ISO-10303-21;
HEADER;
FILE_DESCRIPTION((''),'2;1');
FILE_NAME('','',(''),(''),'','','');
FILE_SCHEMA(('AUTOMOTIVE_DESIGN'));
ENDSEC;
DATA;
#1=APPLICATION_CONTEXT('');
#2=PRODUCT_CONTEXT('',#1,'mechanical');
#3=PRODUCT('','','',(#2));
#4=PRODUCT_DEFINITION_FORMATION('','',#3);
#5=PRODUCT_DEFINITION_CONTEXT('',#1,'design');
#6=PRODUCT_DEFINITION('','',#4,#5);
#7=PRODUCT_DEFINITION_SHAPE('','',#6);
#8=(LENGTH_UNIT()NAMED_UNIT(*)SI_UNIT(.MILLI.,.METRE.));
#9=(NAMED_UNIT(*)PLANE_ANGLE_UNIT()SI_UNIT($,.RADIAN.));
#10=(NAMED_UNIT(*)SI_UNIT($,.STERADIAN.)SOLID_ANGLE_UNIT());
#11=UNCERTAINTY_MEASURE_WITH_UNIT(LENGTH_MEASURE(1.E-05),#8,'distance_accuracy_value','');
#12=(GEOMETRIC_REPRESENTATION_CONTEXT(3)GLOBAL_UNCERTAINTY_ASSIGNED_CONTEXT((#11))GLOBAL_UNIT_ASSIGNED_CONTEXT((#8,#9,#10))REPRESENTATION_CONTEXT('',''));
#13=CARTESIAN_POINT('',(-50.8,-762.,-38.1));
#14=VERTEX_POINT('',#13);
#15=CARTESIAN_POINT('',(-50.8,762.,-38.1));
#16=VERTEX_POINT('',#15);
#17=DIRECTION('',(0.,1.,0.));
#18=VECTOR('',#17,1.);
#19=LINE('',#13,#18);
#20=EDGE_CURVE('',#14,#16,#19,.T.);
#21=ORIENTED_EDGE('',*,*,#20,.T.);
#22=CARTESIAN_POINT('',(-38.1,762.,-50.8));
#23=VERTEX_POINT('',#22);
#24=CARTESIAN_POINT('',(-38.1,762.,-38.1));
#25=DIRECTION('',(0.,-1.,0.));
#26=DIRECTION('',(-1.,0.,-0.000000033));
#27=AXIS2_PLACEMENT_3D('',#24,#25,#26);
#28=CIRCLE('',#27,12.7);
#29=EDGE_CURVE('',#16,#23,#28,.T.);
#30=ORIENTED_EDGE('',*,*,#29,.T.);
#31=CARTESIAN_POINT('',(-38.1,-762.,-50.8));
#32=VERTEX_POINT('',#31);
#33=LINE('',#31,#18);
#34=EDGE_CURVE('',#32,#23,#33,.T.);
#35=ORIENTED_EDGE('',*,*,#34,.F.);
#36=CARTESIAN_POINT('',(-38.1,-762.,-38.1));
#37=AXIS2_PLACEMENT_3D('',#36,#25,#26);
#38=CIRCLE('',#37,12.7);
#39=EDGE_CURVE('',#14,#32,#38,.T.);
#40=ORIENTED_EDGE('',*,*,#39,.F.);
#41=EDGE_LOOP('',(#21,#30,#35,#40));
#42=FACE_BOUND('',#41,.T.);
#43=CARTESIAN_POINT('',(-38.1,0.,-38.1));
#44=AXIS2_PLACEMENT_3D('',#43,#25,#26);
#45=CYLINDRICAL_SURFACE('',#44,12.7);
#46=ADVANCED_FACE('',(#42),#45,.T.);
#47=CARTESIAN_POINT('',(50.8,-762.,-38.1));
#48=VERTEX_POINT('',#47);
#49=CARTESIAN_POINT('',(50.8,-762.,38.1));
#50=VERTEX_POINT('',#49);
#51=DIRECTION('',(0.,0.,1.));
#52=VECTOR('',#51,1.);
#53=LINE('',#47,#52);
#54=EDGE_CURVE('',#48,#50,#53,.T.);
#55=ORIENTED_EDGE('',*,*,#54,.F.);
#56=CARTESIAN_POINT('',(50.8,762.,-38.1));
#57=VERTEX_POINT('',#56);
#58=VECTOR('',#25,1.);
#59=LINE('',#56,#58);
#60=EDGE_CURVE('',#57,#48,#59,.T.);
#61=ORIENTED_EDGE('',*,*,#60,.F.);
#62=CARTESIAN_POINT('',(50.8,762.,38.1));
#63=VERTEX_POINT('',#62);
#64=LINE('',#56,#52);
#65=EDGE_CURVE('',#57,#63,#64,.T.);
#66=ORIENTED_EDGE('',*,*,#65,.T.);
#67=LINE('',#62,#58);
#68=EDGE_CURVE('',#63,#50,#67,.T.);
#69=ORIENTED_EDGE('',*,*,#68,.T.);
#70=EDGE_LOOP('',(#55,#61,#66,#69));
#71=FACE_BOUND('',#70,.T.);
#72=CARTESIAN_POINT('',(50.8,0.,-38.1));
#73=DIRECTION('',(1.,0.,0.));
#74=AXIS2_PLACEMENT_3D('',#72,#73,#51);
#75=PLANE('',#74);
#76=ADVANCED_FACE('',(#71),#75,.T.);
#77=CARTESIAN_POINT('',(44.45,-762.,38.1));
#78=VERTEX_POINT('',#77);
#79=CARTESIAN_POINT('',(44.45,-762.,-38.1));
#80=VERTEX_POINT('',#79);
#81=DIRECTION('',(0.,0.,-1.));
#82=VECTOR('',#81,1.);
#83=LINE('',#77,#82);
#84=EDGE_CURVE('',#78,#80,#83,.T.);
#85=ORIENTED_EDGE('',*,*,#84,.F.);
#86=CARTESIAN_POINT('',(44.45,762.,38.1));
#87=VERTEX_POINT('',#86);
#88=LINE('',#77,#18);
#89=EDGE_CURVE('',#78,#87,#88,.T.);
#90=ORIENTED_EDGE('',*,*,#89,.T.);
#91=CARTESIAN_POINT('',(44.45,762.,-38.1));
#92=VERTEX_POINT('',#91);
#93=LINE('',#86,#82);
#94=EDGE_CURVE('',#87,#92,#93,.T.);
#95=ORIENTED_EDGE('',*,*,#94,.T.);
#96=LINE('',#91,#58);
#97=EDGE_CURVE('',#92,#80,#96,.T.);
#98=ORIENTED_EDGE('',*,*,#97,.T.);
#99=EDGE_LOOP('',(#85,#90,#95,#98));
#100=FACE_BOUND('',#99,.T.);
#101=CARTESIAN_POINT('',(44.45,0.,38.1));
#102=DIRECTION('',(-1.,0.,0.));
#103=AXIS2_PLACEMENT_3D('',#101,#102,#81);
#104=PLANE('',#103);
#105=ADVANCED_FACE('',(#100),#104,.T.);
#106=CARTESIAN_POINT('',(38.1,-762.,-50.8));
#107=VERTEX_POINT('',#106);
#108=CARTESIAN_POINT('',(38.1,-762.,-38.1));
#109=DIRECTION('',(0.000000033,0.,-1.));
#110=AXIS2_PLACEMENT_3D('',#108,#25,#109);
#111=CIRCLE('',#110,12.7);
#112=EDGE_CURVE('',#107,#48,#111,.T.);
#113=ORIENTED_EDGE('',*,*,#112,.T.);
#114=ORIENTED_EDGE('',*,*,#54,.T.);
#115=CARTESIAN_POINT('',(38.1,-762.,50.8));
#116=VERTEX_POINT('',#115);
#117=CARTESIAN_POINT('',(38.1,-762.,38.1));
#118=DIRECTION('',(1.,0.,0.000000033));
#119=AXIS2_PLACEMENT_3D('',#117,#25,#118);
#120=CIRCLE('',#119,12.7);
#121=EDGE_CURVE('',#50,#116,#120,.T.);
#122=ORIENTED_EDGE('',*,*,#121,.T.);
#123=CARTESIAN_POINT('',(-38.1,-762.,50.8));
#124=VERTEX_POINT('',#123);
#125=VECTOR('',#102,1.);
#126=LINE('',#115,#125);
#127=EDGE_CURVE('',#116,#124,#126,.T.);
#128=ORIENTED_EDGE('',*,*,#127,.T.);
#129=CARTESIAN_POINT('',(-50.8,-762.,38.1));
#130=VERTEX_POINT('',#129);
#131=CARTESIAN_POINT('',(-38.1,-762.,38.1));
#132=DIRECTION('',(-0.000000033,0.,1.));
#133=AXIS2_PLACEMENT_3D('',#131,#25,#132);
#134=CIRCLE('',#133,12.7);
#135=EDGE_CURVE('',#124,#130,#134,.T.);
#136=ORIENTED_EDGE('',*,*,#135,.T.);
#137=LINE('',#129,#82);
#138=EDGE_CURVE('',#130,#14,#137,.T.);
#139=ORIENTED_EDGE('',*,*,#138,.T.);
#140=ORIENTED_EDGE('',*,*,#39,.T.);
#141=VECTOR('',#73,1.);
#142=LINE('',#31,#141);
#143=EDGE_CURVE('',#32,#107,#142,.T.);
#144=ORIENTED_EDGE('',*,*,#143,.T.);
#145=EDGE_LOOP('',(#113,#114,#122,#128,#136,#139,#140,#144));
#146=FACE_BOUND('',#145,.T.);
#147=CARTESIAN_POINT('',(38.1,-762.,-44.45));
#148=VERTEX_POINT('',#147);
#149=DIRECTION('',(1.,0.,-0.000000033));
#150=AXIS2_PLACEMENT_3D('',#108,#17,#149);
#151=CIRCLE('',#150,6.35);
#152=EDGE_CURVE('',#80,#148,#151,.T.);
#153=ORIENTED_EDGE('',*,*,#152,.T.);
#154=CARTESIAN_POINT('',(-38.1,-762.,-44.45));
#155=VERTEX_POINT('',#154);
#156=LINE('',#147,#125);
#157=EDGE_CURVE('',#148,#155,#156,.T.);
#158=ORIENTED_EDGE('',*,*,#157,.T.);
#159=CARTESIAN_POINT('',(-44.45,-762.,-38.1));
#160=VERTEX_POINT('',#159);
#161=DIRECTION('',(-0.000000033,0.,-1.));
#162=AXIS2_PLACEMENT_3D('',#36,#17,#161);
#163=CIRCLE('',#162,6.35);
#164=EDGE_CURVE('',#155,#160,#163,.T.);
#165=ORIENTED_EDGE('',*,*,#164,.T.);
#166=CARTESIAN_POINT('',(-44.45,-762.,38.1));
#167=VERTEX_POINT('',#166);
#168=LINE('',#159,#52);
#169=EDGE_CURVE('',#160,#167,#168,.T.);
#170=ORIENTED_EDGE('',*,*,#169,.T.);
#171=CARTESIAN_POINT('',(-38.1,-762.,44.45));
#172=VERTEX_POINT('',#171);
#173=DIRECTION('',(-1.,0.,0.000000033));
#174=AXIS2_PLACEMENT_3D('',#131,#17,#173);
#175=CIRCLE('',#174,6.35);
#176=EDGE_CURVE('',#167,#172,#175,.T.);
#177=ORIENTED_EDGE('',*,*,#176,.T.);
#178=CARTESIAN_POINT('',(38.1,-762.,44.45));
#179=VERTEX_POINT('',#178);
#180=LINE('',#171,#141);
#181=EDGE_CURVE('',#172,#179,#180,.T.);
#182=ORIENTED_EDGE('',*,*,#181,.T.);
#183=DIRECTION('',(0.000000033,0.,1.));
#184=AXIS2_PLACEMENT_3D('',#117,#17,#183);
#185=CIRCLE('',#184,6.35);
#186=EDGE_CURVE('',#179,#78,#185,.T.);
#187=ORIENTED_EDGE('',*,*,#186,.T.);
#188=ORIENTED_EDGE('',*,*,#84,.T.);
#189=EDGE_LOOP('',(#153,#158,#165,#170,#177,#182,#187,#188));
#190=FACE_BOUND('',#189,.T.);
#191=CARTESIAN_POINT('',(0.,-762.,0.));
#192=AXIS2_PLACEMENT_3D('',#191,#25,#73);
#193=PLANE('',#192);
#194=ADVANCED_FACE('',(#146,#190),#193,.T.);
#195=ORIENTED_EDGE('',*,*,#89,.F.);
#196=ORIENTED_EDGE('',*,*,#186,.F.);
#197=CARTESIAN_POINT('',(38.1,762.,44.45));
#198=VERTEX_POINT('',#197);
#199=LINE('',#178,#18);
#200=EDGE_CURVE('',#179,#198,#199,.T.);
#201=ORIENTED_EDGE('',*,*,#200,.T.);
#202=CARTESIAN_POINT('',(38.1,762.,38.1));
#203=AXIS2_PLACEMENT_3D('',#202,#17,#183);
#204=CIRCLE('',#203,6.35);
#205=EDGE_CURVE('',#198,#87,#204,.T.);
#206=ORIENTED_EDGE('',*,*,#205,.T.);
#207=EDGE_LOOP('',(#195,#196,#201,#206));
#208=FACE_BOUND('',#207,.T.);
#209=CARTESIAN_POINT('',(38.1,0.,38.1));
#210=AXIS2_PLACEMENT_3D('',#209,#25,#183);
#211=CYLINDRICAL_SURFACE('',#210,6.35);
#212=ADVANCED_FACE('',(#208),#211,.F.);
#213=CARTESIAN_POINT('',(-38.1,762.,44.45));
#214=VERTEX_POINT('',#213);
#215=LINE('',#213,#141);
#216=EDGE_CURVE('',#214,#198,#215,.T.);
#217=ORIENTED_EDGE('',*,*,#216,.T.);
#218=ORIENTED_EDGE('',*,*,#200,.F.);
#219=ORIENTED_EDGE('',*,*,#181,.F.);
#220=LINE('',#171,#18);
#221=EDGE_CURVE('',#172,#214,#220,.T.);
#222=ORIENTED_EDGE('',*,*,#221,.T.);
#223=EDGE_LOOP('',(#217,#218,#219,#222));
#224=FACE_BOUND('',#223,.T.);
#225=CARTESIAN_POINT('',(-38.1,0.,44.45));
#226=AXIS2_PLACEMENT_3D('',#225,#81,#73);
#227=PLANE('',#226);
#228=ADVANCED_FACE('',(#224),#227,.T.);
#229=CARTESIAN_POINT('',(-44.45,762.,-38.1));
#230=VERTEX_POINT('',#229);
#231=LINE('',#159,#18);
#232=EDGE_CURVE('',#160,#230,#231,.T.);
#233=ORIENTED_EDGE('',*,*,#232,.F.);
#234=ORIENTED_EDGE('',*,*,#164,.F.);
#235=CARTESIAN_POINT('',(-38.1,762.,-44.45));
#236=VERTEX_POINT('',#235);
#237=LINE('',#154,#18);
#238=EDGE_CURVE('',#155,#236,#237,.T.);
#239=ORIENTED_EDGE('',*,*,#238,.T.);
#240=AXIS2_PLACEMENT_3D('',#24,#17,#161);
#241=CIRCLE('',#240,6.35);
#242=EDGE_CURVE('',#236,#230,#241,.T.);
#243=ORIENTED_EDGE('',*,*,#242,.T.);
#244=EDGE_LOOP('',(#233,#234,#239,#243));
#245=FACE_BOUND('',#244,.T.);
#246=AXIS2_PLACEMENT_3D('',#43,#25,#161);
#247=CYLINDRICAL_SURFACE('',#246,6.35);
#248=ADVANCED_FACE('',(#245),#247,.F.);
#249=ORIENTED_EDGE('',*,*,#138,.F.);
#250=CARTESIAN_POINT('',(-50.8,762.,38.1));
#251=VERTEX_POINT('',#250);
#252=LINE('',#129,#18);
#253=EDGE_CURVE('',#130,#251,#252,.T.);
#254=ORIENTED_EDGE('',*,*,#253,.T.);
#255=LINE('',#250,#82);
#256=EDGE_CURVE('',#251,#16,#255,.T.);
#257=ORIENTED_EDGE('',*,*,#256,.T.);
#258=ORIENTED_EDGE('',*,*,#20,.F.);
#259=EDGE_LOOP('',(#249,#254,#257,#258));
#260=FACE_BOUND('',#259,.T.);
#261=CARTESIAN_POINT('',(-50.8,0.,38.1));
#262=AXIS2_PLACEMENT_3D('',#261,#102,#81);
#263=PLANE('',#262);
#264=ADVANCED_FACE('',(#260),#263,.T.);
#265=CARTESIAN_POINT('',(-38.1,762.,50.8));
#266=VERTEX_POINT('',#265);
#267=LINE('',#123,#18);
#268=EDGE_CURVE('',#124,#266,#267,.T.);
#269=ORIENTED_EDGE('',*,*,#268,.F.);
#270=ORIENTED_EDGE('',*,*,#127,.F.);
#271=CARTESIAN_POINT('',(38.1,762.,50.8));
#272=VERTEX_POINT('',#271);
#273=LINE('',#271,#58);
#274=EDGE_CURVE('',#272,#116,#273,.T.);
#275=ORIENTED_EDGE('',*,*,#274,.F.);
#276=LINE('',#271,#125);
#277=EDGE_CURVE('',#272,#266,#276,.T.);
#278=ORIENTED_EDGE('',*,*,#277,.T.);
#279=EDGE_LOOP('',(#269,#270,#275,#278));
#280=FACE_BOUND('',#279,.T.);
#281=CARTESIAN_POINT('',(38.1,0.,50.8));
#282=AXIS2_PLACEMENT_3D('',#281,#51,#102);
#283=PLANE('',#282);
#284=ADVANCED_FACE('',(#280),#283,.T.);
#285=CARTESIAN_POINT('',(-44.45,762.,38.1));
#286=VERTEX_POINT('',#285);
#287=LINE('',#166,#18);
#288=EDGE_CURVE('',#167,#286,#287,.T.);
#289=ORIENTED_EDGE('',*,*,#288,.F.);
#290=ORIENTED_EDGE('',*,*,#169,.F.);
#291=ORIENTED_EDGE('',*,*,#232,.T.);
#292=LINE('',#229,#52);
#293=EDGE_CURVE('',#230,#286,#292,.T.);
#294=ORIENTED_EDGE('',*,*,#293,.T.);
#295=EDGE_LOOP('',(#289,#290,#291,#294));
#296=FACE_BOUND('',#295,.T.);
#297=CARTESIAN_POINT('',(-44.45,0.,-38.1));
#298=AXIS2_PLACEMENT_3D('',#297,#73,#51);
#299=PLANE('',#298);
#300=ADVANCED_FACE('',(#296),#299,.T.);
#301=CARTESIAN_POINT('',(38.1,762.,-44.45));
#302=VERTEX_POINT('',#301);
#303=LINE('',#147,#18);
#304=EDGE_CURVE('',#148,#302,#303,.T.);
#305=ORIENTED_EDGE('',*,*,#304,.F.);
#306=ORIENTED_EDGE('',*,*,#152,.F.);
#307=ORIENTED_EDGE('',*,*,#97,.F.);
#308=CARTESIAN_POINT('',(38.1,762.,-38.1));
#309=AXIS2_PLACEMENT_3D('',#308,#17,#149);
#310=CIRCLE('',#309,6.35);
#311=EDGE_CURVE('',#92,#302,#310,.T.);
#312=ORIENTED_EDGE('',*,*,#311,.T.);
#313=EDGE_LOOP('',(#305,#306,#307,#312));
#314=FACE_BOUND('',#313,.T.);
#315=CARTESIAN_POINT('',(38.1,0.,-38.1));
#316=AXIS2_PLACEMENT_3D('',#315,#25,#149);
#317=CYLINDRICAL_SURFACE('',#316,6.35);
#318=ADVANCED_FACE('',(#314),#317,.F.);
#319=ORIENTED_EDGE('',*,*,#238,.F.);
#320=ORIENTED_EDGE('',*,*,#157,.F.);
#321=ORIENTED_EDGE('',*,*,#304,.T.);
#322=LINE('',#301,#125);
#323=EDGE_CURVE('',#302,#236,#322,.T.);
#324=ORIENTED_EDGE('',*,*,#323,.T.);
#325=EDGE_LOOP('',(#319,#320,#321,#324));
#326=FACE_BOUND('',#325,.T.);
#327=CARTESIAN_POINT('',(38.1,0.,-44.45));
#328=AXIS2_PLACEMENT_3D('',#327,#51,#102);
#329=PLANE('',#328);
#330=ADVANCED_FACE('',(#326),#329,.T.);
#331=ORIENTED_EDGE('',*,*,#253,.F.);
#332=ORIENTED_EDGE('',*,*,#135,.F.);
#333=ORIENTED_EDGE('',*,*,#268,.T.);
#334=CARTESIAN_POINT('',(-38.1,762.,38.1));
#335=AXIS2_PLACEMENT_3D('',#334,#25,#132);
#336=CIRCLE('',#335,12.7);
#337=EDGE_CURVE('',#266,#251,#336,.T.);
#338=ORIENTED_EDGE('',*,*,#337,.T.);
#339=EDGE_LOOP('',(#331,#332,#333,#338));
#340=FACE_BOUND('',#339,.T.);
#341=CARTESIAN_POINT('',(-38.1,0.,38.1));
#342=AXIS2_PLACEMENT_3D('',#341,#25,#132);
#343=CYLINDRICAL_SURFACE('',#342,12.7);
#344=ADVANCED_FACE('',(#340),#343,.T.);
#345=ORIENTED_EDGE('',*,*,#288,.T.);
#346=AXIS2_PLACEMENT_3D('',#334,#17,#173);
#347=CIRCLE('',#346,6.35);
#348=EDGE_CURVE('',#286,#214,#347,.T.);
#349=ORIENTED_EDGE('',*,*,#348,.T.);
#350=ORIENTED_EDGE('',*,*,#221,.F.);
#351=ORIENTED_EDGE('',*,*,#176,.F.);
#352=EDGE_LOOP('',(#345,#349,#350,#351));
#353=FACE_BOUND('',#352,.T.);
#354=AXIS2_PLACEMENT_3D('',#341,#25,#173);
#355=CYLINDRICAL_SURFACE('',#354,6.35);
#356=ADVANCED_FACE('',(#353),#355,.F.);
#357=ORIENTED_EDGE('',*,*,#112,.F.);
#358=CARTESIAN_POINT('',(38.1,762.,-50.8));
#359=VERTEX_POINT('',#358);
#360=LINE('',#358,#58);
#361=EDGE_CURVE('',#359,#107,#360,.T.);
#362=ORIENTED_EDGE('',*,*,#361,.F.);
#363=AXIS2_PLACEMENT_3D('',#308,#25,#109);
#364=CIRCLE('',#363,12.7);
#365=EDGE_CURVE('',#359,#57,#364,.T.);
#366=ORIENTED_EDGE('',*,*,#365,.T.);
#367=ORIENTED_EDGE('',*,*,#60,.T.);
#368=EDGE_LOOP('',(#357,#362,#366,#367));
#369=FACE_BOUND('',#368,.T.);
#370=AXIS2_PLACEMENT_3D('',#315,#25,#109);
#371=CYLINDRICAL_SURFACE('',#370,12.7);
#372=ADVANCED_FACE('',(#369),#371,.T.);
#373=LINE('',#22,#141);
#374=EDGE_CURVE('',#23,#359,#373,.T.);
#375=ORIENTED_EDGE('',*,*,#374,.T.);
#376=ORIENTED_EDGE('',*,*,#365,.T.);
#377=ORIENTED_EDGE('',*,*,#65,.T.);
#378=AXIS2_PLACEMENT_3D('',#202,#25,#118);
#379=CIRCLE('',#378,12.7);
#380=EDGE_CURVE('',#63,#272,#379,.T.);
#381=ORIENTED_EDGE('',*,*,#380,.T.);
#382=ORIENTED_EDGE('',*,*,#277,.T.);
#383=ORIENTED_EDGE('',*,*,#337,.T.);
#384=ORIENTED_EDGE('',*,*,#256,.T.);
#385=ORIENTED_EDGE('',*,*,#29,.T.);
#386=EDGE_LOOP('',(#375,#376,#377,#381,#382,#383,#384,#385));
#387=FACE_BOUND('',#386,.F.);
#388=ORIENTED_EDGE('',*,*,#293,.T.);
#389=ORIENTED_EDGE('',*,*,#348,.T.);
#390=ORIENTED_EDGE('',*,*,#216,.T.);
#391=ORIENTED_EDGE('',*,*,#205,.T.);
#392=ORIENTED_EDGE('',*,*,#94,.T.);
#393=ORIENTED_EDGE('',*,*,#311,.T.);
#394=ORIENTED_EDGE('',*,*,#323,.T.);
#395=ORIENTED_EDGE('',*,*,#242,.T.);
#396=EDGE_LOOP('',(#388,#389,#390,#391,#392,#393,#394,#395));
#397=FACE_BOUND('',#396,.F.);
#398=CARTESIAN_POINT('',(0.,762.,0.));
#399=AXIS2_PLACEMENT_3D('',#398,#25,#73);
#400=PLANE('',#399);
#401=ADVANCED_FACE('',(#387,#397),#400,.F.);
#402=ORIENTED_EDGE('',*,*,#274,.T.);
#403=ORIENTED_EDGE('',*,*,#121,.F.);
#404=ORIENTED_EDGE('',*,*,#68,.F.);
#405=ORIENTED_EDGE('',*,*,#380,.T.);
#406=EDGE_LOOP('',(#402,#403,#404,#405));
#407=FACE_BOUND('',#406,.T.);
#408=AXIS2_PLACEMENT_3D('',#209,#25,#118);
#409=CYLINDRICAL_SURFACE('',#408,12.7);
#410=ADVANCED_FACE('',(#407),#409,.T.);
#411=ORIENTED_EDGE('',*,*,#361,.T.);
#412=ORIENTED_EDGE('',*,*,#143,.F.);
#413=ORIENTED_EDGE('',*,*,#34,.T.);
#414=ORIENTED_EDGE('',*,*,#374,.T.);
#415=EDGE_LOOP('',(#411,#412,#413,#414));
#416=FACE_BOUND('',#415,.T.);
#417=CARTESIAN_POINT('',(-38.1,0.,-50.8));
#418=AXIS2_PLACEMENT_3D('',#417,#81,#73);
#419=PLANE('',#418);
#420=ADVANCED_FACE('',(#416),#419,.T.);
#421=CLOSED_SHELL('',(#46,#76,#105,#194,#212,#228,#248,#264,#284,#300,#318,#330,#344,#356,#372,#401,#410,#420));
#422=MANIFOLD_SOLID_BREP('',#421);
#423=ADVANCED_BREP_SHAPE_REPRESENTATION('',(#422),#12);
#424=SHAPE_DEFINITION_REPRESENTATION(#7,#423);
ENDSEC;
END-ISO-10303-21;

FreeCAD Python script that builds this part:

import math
import FreeCAD as App
import Part
import Sketcher

V = App.Vector
Q = App.Units.Quantity

doc = App.newDocument("Part")
body = doc.addObject("PartDesign::Body", "Body")

# Sketch on XZ plane
sketch1 = body.newObject("Sketcher::SketchObject", "Sketch")
sketch1.AttachmentSupport = (doc.getObject("XZ_Plane"), [""])
sketch1.MapMode = "FlatFace"
sketch1.addGeometry([
    Part.LineSegment(V(-38.1, -50.8, 0), V(38.1, -50.8, 0)),  # 0
    Part.ArcOfCircle(Part.Circle(V(38.1, -38.1, 0), V(0, 0, 1), 12.7), math.radians(-89.999998), math.radians(-0.000002)),  # 1
    Part.LineSegment(V(50.8, -38.1, 0), V(50.8, 38.1, 0)),  # 2
    Part.ArcOfCircle(Part.Circle(V(38.1, 38.1, 0), V(0, 0, 1), 12.7), math.radians(0.000002), math.radians(89.999998)),  # 3
    Part.LineSegment(V(38.1, 50.8, 0), V(-38.1, 50.8, 0)),  # 4
    Part.ArcOfCircle(Part.Circle(V(-38.1, 38.1, 0), V(0, 0, 1), 12.7), math.radians(90.000002), math.radians(179.999998)),  # 5
    Part.LineSegment(V(-50.8, 38.1, 0), V(-50.8, -38.1, 0)),  # 6
    Part.ArcOfCircle(Part.Circle(V(-38.1, -38.1, 0), V(0, 0, 1), 12.7), math.radians(-179.999998), math.radians(-90.000002)),  # 7
    Part.LineSegment(V(44.45, 38.1, 0), V(44.45, -38.1, 0)),  # 8
    Part.ArcOfCircle(Part.Circle(V(38.1, -38.1, 0), V(0, 0, 1), 6.35), math.radians(-89.999998), math.radians(-0.000002)),  # 9
    Part.LineSegment(V(38.1, -44.45, 0), V(-38.1, -44.45, 0)),  # 10
    Part.ArcOfCircle(Part.Circle(V(-38.1, -38.1, 0), V(0, 0, 1), 6.35), math.radians(-179.999998), math.radians(-90.000002)),  # 11
    Part.LineSegment(V(-44.45, -38.1, 0), V(-44.45, 38.1, 0)),  # 12
    Part.ArcOfCircle(Part.Circle(V(-38.1, 38.1, 0), V(0, 0, 1), 6.35), math.radians(90.000002), math.radians(179.999998)),  # 13
    Part.LineSegment(V(-38.1, 44.45, 0), V(38.1, 44.45, 0)),  # 14
    Part.ArcOfCircle(Part.Circle(V(38.1, 38.1, 0), V(0, 0, 1), 6.35), math.radians(0.000002), math.radians(89.999998)),  # 15
], False)
sketch1.addConstraint([
    Sketcher.Constraint("Tangent", 0, 2, 1, 1),
    Sketcher.Constraint("Tangent", 1, 2, 2, 1),
    Sketcher.Constraint("Tangent", 2, 2, 3, 1),
    Sketcher.Constraint("Tangent", 3, 2, 4, 1),
    Sketcher.Constraint("Tangent", 4, 2, 5, 1),
    Sketcher.Constraint("Tangent", 5, 2, 6, 1),
    Sketcher.Constraint("Tangent", 6, 2, 7, 1),
    Sketcher.Constraint("Tangent", 7, 2, 0, 1),
    Sketcher.Constraint("Tangent", 8, 2, 9, 2),
    Sketcher.Constraint("Tangent", 9, 1, 10, 1),
    Sketcher.Constraint("Tangent", 10, 2, 11, 2),
    Sketcher.Constraint("Tangent", 11, 1, 12, 1),
    Sketcher.Constraint("Tangent", 12, 2, 13, 2),
    Sketcher.Constraint("Tangent", 13, 1, 14, 1),
    Sketcher.Constraint("Tangent", 14, 2, 15, 2),
    Sketcher.Constraint("Tangent", 15, 1, 8, 1),
    Sketcher.Constraint("Horizontal", 0),
    Sketcher.Constraint("Vertical", 2),
    Sketcher.Constraint("Horizontal", 4),
    Sketcher.Constraint("Vertical", 6),
    Sketcher.Constraint("Vertical", 8),
    Sketcher.Constraint("Horizontal", 10),
    Sketcher.Constraint("Vertical", 12),
    Sketcher.Constraint("Horizontal", 14),
    Sketcher.Constraint("Coincident", 9, 3, 1, 3),
    Sketcher.Constraint("Coincident", 11, 3, 7, 3),
    Sketcher.Constraint("Coincident", 13, 3, 5, 3),
    Sketcher.Constraint("Equal", 1, 3),
    Sketcher.Constraint("Equal", 3, 5),
    Sketcher.Constraint("Equal", 5, 7),
    Sketcher.Constraint("Equal", 13, 15),
    Sketcher.Constraint("Symmetric", 1, 3, 5, 3, -1, 1),
    Sketcher.Constraint("Equal", 14, 2),
    Sketcher.Constraint("Radius", 1, Q("0.5 in")),
    Sketcher.Constraint("DistanceX", 0, 1, 0, 2, Q("3 in")),
    Sketcher.Constraint("Radius", 9, Q("0.25 in")),
])
pad1 = body.newObject("PartDesign::Pad", "Pad")
pad1.Profile = sketch1
pad1.Length = Q("60 in")
pad1.Midplane = True

doc.recompute()
